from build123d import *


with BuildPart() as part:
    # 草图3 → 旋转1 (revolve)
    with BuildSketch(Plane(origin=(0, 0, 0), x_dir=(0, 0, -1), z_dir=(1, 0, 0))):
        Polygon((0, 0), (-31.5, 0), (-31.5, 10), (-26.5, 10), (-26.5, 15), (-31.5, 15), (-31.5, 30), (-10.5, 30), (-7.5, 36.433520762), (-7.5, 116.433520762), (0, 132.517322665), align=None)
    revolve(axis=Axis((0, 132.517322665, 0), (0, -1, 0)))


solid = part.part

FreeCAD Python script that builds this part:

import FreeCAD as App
import Part
import Sketcher
from FreeCAD import Vector
Q = App.Units.Quantity

doc = App.newDocument("Part")
body = doc.addObject("PartDesign::Body", "Body")

# Sketch on YZ plane
sketch1 = doc.addObject("Sketcher::SketchObject", "Sketch")
body.addObject(sketch1)
sketch1.AttachmentSupport = (doc.YZ_Plane, [""])
sketch1.MapMode = "FlatFace"
sketch1.addGeometry([
    Part.LineSegment(Vector(0, 32, 0), Vector(0, 0, 0)),  # 0
    Part.LineSegment(Vector(0, 0, 0), Vector(133, 0, 0)),  # 1
    Part.LineSegment(Vector(133, 0, 0), Vector(116, 8, 0)),  # 2
    Part.LineSegment(Vector(116, 8, 0), Vector(36, 8, 0)),  # 3
    Part.LineSegment(Vector(36, 8, 0), Vector(30, 10, 0)),  # 4
    Part.LineSegment(Vector(30, 10, 0), Vector(30, 32, 0)),  # 5
    Part.LineSegment(Vector(30, 32, 0), Vector(15, 32, 0)),  # 6
    Part.LineSegment(Vector(15, 32, 0), Vector(15, 26, 0)),  # 7
    Part.LineSegment(Vector(15, 26, 0), Vector(10, 26, 0)),  # 8
    Part.LineSegment(Vector(10, 26, 0), Vector(10, 32, 0)),  # 9
    Part.LineSegment(Vector(10, 32, 0), Vector(0, 32, 0)),  # 10
], False)
sketch1.addConstraint([
    Sketcher.Constraint("Coincident", 0, 2, 1, 1),
    Sketcher.Constraint("Coincident", 1, 2, 2, 1),
    Sketcher.Constraint("Coincident", 2, 2, 3, 1),
    Sketcher.Constraint("Coincident", 3, 2, 4, 1),
    Sketcher.Constraint("Coincident", 4, 2, 5, 1),
    Sketcher.Constraint("Coincident", 5, 2, 6, 1),
    Sketcher.Constraint("Coincident", 6, 2, 7, 1),
    Sketcher.Constraint("Coincident", 7, 2, 8, 1),
    Sketcher.Constraint("Coincident", 8, 2, 9, 1),
    Sketcher.Constraint("Coincident", 9, 2, 10, 1),
    Sketcher.Constraint("Coincident", 10, 2, 0, 1),
    Sketcher.Constraint("Vertical", 0),
    Sketcher.Constraint("Horizontal", 1),
    Sketcher.Constraint("Horizontal", 3),
    Sketcher.Constraint("Vertical", 5),
    Sketcher.Constraint("Horizontal", 6),
    Sketcher.Constraint("Vertical", 7),
    Sketcher.Constraint("Horizontal", 8),
    Sketcher.Constraint("Vertical", 9),
    Sketcher.Constraint("Horizontal", 10),
    Sketcher.Constraint("Coincident", 0, 2, -1, 1),
    Sketcher.Constraint("Parallel", 2, 4),
    Sketcher.Constraint("Horizontal", 6, 2, 9, 2),
    Sketcher.Constraint("Equal", 8, 7),
    Sketcher.Constraint("DistanceX", 3, 2, 3, 1, Q("80 mm")),
    Sketcher.Constraint("DistanceX", 6, 2, 6, 1, Q("15 mm")),
    Sketcher.Constraint("DistanceX", 8, 2, 8, 1, Q("5 mm")),
    Sketcher.Constraint("DistanceX", 10, 2, 10, 1, Q("10 mm")),
    Sketcher.Constraint("DistanceY", 5, 1, 5, 2, Q("21 mm")),
    Sketcher.Constraint("Angle", 2, Q("155 deg")),
    Sketcher.Constraint("DistanceY", 0, 2, 0, 1, Q("31.5 mm")),
    Sketcher.Constraint("DistanceY", 3, 2, 4, 2, Q("3 mm")),
])
revolution = doc.addObject("PartDesign::Revolution", "Revolution")
body.addObject(revolution)
revolution.Profile = sketch1
revolution.ReferenceAxis = (sketch1, ["H_Axis"])
revolution.Angle = 360

doc.recompute()
